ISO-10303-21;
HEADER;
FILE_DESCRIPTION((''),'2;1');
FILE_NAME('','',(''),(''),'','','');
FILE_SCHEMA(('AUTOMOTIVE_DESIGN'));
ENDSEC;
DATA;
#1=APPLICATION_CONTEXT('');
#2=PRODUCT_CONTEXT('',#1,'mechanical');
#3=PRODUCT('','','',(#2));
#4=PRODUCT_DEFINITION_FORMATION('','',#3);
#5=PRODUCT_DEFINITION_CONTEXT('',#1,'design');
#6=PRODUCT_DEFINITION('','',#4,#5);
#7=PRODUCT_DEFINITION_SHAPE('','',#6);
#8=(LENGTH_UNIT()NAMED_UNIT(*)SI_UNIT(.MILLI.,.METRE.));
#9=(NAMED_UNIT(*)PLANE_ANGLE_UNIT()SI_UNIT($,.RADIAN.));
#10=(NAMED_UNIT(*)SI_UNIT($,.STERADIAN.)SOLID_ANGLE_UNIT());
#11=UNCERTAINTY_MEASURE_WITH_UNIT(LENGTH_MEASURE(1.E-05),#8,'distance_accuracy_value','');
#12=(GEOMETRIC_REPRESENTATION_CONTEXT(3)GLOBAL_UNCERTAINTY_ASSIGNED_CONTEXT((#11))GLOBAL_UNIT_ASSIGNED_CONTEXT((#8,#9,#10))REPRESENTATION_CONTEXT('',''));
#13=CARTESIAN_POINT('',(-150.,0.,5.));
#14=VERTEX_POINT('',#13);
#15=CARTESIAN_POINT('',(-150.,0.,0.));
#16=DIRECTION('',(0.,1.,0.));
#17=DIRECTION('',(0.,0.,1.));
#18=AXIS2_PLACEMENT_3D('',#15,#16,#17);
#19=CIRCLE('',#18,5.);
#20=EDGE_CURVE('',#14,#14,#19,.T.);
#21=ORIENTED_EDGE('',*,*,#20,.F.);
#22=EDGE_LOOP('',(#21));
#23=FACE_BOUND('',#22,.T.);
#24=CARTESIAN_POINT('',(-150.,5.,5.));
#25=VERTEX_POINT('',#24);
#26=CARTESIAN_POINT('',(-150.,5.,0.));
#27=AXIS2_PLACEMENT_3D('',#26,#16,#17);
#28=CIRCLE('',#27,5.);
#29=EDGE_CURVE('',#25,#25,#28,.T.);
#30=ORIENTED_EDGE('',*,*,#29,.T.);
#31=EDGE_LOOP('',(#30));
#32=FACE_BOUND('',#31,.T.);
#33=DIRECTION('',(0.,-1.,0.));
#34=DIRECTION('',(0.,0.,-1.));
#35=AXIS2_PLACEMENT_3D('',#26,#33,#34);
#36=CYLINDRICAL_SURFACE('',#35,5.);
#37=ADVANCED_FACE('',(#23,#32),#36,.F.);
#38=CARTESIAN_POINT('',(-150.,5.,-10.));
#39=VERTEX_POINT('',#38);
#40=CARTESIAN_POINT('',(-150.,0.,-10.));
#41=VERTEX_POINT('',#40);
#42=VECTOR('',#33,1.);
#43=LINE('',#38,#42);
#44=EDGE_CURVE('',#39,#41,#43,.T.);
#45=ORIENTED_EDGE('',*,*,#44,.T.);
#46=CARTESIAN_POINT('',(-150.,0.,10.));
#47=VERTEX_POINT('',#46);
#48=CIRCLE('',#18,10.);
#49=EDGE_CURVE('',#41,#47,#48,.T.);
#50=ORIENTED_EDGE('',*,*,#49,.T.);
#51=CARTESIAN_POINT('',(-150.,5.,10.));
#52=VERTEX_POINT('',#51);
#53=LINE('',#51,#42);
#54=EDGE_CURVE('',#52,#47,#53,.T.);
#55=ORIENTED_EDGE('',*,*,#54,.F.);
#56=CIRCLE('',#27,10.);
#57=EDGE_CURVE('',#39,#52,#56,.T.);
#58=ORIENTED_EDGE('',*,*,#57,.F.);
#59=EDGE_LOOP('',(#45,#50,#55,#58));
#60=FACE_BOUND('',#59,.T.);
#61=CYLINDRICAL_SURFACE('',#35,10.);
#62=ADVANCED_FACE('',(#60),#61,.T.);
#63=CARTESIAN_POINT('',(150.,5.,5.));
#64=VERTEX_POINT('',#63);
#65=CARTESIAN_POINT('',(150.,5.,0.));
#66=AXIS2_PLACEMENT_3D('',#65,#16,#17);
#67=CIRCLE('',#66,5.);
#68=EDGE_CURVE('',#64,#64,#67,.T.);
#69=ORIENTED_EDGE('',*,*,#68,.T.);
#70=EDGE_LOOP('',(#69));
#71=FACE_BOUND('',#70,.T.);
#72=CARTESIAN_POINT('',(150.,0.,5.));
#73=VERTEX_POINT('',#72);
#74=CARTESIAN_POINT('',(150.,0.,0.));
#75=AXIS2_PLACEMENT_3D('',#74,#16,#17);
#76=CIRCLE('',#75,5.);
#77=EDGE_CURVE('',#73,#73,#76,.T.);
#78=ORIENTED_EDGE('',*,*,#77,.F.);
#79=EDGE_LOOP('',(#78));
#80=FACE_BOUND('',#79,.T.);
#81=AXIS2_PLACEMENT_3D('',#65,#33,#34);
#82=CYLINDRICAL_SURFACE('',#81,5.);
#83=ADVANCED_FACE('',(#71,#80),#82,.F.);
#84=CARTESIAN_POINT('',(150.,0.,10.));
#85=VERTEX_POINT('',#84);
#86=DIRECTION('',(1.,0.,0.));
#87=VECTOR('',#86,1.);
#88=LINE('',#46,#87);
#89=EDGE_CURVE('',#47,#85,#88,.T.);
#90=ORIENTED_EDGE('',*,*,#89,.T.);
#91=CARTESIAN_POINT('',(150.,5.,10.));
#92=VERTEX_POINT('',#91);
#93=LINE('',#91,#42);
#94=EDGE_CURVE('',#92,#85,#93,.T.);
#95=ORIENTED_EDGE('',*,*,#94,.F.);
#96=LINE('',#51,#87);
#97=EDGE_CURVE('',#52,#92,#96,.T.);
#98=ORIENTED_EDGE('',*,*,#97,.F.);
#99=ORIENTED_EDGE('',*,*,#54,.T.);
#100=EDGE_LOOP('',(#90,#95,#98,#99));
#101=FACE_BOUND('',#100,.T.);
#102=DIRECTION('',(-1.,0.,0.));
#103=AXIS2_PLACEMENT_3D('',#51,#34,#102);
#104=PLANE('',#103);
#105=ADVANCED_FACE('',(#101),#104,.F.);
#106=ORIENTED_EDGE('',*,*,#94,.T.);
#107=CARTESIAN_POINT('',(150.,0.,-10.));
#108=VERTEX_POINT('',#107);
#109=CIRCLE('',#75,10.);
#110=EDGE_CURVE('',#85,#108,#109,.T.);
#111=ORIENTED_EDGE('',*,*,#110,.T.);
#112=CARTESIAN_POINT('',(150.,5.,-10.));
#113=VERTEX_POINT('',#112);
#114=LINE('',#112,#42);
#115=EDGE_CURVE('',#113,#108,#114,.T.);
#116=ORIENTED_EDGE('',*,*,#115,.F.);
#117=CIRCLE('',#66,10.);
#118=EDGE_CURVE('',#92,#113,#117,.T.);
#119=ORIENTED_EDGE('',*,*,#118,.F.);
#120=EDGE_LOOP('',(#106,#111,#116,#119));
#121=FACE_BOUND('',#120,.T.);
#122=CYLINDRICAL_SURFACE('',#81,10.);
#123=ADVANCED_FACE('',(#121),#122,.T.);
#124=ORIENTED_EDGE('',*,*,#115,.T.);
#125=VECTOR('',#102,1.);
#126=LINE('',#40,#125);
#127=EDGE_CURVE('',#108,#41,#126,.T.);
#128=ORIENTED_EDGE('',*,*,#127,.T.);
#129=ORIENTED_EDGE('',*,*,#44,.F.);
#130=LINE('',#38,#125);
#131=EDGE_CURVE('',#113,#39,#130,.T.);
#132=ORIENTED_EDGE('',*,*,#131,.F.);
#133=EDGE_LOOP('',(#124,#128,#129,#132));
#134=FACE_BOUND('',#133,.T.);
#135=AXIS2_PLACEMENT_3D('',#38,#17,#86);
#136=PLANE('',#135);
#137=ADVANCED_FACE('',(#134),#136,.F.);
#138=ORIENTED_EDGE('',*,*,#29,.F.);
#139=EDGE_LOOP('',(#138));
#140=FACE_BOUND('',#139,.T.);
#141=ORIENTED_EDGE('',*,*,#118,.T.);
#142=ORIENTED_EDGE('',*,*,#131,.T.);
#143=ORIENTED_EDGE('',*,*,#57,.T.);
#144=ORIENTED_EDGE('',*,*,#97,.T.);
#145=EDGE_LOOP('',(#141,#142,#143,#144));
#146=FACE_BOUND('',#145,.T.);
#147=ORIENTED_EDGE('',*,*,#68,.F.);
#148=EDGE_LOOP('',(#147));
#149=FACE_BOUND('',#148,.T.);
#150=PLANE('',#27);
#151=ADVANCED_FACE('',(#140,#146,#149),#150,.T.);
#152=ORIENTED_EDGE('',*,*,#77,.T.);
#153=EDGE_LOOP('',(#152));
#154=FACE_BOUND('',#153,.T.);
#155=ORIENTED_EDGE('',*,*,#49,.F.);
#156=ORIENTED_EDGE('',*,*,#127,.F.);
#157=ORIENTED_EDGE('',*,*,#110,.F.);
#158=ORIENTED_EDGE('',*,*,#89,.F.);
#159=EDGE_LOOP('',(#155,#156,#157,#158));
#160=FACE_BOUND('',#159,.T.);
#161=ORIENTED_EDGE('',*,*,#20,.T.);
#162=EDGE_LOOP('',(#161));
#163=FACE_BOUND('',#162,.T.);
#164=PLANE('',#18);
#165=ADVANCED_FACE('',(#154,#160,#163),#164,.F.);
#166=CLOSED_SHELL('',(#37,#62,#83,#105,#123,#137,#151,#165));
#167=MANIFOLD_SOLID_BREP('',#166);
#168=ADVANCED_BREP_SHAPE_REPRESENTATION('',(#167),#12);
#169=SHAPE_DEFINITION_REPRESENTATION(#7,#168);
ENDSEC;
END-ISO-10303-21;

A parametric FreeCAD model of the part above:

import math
import FreeCAD as App
import Part
import Sketcher

V = App.Vector
Q = App.Units.Quantity

doc = App.newDocument("Part")
body = doc.addObject("PartDesign::Body", "Body")

sketch1 = doc.addObject("Sketcher::SketchObject", "Sketch")
body.addObject(sketch1)
sketch1.AttachmentSupport = (doc.XZ_Plane, [""])
sketch1.MapMode = "FlatFace"
sketch1.addGeometry(Part.LineSegment(V(150, -10, 0), V(-150, -10, 0)), False)
sketch1.addGeometry(Part.ArcOfCircle(Part.Circle(V(-150, 0, 0), V(0, 0, 1), 10), math.radians(90), math.radians(270)), False)
sketch1.addGeometry(Part.LineSegment(V(-150, 10, 0), V(150, 10, 0)), False)
sketch1.addGeometry(Part.ArcOfCircle(Part.Circle(V(150, 0, 0), V(0, 0, 1), 10), math.radians(-90), math.radians(90)), False)
sketch1.addGeometry(Part.Circle(V(150, 0, 0), V(0, 0, 1), 5), False)
sketch1.addGeometry(Part.Circle(V(-150, 0, 0), V(0, 0, 1), 5), False)
sketch1.addConstraint(Sketcher.Constraint("Tangent", 0, 2, 1, 2))
sketch1.addConstraint(Sketcher.Constraint("Tangent", 1, 1, 2, 1))
sketch1.addConstraint(Sketcher.Constraint("Tangent", 2, 2, 3, 2))
sketch1.addConstraint(Sketcher.Constraint("Tangent", 3, 1, 0, 1))
sketch1.addConstraint(Sketcher.Constraint("Horizontal", 0))
sketch1.addConstraint(Sketcher.Constraint("Horizontal", 2))
sketch1.addConstraint(Sketcher.Constraint("Coincident", 4, 3, 3, 3))
sketch1.addConstraint(Sketcher.Constraint("Coincident", 5, 3, 1, 3))
sketch1.addConstraint(Sketcher.Constraint("Equal", 4, 5))
sketch1.addConstraint(Sketcher.Constraint("Symmetric", 1, 3, 3, 3, -1, 1))
sketch1.addConstraint(Sketcher.Constraint("Diameter", 4, Q("10 mm")))
sketch1.addConstraint(Sketcher.Constraint("Radius", 1, Q("10 mm")))
sketch1.addConstraint(Sketcher.Constraint("DistanceX", 0, 2, 0, 1, Q("300 mm")))
pad1 = doc.addObject("PartDesign::Pad", "Pad")
body.addObject(pad1)
pad1.Profile = sketch1
pad1.Length = 5
pad1.Reversed = True

doc.recompute()
